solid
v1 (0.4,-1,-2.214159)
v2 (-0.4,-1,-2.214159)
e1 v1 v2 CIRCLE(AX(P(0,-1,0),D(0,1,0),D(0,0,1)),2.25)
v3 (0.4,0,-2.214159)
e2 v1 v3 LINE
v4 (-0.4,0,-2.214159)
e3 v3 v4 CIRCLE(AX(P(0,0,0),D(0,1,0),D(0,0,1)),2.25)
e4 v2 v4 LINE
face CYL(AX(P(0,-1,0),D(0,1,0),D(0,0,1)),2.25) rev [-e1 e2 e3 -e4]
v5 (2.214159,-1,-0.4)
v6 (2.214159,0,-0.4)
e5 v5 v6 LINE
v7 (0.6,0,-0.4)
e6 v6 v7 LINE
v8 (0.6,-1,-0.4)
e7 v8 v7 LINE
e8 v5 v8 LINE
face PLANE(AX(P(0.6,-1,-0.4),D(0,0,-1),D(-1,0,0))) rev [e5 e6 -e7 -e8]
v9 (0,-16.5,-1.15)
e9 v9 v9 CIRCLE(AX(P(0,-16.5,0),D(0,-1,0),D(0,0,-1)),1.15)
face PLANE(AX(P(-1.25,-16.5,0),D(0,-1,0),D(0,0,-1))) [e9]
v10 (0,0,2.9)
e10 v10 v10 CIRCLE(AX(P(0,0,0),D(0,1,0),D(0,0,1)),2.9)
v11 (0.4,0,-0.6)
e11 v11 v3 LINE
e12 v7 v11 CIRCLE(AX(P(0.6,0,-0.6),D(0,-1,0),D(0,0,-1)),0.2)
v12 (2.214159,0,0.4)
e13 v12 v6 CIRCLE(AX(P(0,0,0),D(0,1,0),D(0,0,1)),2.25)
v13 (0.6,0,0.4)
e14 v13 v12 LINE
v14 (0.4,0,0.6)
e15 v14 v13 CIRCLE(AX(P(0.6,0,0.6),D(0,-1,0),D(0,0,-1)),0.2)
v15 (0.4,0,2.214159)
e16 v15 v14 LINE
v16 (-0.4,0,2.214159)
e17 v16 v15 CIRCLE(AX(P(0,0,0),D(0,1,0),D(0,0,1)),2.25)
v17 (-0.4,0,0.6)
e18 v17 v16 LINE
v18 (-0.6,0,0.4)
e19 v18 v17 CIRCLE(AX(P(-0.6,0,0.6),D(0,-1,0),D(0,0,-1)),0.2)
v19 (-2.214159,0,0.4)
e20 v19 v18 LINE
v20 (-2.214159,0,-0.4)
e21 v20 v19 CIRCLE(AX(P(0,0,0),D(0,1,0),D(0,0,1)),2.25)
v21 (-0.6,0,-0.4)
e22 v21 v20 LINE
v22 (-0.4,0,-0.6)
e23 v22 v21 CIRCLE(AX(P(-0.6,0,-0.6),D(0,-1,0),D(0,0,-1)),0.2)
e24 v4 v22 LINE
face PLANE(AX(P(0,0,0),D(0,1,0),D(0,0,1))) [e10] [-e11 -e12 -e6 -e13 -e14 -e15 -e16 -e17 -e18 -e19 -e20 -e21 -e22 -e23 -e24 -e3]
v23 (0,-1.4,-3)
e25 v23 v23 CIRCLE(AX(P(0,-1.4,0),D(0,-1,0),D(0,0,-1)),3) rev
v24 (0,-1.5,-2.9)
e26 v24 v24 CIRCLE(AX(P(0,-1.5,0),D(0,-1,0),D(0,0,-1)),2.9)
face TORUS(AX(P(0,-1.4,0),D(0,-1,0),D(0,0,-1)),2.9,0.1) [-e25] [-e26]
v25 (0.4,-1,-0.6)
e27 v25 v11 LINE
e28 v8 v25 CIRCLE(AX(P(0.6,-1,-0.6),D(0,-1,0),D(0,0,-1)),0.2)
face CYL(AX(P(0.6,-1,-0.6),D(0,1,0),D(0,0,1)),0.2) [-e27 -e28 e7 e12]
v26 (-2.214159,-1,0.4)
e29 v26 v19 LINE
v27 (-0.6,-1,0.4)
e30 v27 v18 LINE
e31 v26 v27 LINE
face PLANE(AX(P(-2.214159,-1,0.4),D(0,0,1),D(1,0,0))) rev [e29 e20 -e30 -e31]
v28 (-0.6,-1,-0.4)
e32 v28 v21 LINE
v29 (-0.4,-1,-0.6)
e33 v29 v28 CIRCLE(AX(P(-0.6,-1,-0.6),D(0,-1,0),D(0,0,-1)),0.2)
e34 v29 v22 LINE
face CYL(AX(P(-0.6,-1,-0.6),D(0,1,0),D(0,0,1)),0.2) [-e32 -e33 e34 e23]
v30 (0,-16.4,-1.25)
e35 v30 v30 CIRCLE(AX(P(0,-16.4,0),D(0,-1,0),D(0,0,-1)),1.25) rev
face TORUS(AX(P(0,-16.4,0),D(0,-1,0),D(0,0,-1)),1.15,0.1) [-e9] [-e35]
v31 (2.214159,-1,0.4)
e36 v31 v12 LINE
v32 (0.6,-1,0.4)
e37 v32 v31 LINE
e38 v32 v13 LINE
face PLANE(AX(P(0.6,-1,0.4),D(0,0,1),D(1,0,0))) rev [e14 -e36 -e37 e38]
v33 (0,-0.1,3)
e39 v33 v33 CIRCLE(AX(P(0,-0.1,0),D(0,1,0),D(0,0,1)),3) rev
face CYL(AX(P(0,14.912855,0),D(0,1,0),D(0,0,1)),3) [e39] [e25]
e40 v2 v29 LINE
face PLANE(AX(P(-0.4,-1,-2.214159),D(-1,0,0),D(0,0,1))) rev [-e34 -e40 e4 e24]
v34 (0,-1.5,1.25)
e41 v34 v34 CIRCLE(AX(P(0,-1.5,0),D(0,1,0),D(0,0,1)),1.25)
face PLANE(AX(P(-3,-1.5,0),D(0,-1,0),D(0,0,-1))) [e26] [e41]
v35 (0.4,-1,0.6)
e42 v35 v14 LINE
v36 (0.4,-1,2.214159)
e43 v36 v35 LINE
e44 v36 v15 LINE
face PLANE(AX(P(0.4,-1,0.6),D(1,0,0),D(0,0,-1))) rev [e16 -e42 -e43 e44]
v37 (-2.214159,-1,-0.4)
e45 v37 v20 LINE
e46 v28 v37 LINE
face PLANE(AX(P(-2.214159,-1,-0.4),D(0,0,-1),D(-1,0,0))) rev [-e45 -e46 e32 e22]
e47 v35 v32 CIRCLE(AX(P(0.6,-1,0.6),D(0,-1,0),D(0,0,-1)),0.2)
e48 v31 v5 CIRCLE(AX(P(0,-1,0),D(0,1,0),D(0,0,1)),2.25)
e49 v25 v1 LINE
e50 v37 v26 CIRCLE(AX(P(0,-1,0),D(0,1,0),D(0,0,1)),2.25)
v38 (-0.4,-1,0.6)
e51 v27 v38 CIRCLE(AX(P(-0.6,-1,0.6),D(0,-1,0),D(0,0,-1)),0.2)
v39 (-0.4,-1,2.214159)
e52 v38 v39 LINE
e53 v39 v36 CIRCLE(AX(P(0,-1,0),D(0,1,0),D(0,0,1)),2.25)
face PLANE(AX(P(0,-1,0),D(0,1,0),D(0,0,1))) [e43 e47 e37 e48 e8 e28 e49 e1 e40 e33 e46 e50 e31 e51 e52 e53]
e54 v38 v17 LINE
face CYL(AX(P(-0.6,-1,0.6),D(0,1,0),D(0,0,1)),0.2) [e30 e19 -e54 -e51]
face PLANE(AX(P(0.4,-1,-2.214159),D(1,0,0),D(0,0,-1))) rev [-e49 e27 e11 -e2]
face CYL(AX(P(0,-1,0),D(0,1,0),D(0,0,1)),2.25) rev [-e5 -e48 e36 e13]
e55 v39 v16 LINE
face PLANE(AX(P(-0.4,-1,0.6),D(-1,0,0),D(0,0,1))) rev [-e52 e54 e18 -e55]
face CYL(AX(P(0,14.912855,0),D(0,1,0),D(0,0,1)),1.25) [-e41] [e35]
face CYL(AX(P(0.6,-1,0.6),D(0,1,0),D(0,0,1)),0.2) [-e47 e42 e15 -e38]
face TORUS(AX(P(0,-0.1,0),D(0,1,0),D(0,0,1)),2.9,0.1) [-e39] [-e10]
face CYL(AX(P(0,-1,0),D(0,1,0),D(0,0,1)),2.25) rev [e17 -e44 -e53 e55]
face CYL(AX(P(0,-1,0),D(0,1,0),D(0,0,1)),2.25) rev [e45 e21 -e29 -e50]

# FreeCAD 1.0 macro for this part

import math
import FreeCAD as App
import Part
import Sketcher

V = App.Vector
Q = App.Units.Quantity


def edges_at(feature, points):
    """Names of the edges that pass closest to the given points."""
    edges = feature.Shape.Edges
    near = lambda p: min(range(len(edges)), key=lambda i: edges[i].distToShape(Part.Vertex(*p))[0])
    return sorted({f"Edge{near(p) + 1}" for p in points})


def add_polygon(sketch, points):
    """Adds a closed chain of lines whose ends are joined by coincident constraints."""
    first, n = sketch.GeometryCount, len(points)
    for a, b in zip(points, points[1:] + points[:1]):
        sketch.addGeometry(Part.LineSegment(App.Vector(*a, 0), App.Vector(*b, 0)), False)
    for i in range(n):
        sketch.addConstraint(Sketcher.Constraint("Coincident", first + i, 2, first + (i + 1) % n, 1))

doc = App.newDocument("Part")
body = doc.addObject("PartDesign::Body", "Body")

# Sketch on XY plane
sketch1 = body.newObject("Sketcher::SketchObject", "Sketch")
sketch1.AttachmentSupport = (doc.getObject("XY_Plane"), [""])
sketch1.MapMode = "FlatFace"
add_polygon(sketch1, [(0, 0), (-3, 0), (-3, -1.5), (-1.2, -1.5), (-1.2, -16.5), (0, -16.5)])  # lines 0-5
sketch1.addConstraint(Sketcher.Constraint("Horizontal", 0))
sketch1.addConstraint(Sketcher.Constraint("Vertical", 1))
sketch1.addConstraint(Sketcher.Constraint("Horizontal", 2))
sketch1.addConstraint(Sketcher.Constraint("Vertical", 3))
sketch1.addConstraint(Sketcher.Constraint("Horizontal", 4))
sketch1.addConstraint(Sketcher.Constraint("Vertical", 5))
sketch1.addConstraint(Sketcher.Constraint("Coincident", 5, 2, -1, 1))
sketch1.addConstraint(Sketcher.Constraint("DistanceX", 0, 2, 0, 1, Q("3 mm")))
sketch1.addConstraint(Sketcher.Constraint("DistanceY", 3, 2, 3, 1, Q("15 mm")))
sketch1.addConstraint(Sketcher.Constraint("DistanceY", 1, 2, 1, 1, Q("1.5 mm")))
sketch1.addConstraint(Sketcher.Constraint("DistanceX", 2, 1, 2, 2, Q("1.75 mm")))
revolution = body.newObject("PartDesign::Revolution", "Revolution")
revolution.Profile = sketch1
revolution.ReferenceAxis = (sketch1, ["V_Axis"])
revolution.Angle = 360
doc.recompute()

fillet = body.newObject("PartDesign::Fillet", "Fillet")
fillet.Base = (revolution, edges_at(revolution, [(0, -16.5, -1.25), (0, -1.5, -3), (0, 0, -3)]))
fillet.Radius = 0.1

# Sketch on XZ plane
sketch2 = body.newObject("Sketcher::SketchObject", "Sketch001")
sketch2.AttachmentSupport = (doc.getObject("XZ_Plane"), [""])
sketch2.MapMode = "FlatFace"
sketch2.addGeometry(Part.LineSegment(V(-2.21, 0.4, 0), V(-0.6, 0.4, 0)), False)
sketch2.addGeometry(Part.ArcOfCircle(Part.Circle(V(-0.6, 0.6, 0), V(0, 0, 1), 0.2), math.radians(-90), math.radians(0)), False)
sketch2.addGeometry(Part.LineSegment(V(-0.4, 0.6, 0), V(-0.4, 2.21, 0)), False)
sketch2.addGeometry(Part.ArcOfCircle(Part.Circle(V(0, 0, 0), V(0, 0, 1), 2.25), math.radians(80), math.radians(100)), False)
sketch2.addGeometry(Part.LineSegment(V(0.4, 2.21, 0), V(0.4, 0.6, 0)), False)
sketch2.addGeometry(Part.ArcOfCircle(Part.Circle(V(0.6, 0.6, 0), V(0, 0, 1), 0.2), math.radians(-180), math.radians(-90)), False)
sketch2.addGeometry(Part.LineSegment(V(0.6, 0.4, 0), V(2.21, 0.4, 0)), False)
sketch2.addGeometry(Part.ArcOfCircle(Part.Circle(V(0, 0, 0), V(0, 0, 1), 2.25), math.radians(-10), math.radians(10)), False)
sketch2.addGeometry(Part.LineSegment(V(2.21, -0.4, 0), V(0.6, -0.4, 0)), False)
sketch2.addGeometry(Part.ArcOfCircle(Part.Circle(V(0.6, -0.6, 0), V(0, 0, 1), 0.2), math.radians(90), math.radians(180)), False)
sketch2.addGeometry(Part.LineSegment(V(0.4, -0.6, 0), V(0.4, -2.21, 0)), False)
sketch2.addGeometry(Part.ArcOfCircle(Part.Circle(V(0, 0, 0), V(0, 0, 1), 2.25), math.radians(-100), math.radians(-80)), False)
sketch2.addGeometry(Part.LineSegment(V(-0.4, -2.21, 0), V(-0.4, -0.6, 0)), False)
sketch2.addGeometry(Part.ArcOfCircle(Part.Circle(V(-0.6, -0.6, 0), V(0, 0, 1), 0.2), math.radians(0), math.radians(90)), False)
sketch2.addGeometry(Part.LineSegment(V(-0.6, -0.4, 0), V(-2.21, -0.4, 0)), False)
sketch2.addGeometry(Part.ArcOfCircle(Part.Circle(V(0, 0, 0), V(0, 0, 1), 2.25), math.radians(170), math.radians(190)), False)
sketch2.addConstraint(Sketcher.Constraint("Tangent", 0, 2, 1, 1))
sketch2.addConstraint(Sketcher.Constraint("Tangent", 1, 2, 2, 1))
sketch2.addConstraint(Sketcher.Constraint("Coincident", 2, 2, 3, 2))
sketch2.addConstraint(Sketcher.Constraint("Coincident", 3, 1, 4, 1))
sketch2.addConstraint(Sketcher.Constraint("Tangent", 4, 2, 5, 1))
sketch2.addConstraint(Sketcher.Constraint("Tangent", 5, 2, 6, 1))
sketch2.addConstraint(Sketcher.Constraint("Coincident", 6, 2, 7, 2))
sketch2.addConstraint(Sketcher.Constraint("Coincident", 7, 1, 8, 1))
sketch2.addConstraint(Sketcher.Constraint("Tangent", 8, 2, 9, 1))
sketch2.addConstraint(Sketcher.Constraint("Tangent", 9, 2, 10, 1))
sketch2.addConstraint(Sketcher.Constraint("Coincident", 10, 2, 11, 2))
sketch2.addConstraint(Sketcher.Constraint("Coincident", 11, 1, 12, 1))
sketch2.addConstraint(Sketcher.Constraint("Tangent", 12, 2, 13, 1))
sketch2.addConstraint(Sketcher.Constraint("Tangent", 13, 2, 14, 1))
sketch2.addConstraint(Sketcher.Constraint("Coincident", 14, 2, 15, 2))
sketch2.addConstraint(Sketcher.Constraint("Coincident", 15, 1, 0, 1))
sketch2.addConstraint(Sketcher.Constraint("Horizontal", 0))
sketch2.addConstraint(Sketcher.Constraint("Vertical", 2))
sketch2.addConstraint(Sketcher.Constraint("Vertical", 4))
sketch2.addConstraint(Sketcher.Constraint("Horizontal", 6))
sketch2.addConstraint(Sketcher.Constraint("Horizontal", 8))
sketch2.addConstraint(Sketcher.Constraint("Vertical", 10))
sketch2.addConstraint(Sketcher.Constraint("Vertical", 12))
sketch2.addConstraint(Sketcher.Constraint("Horizontal", 14))
sketch2.addConstraint(Sketcher.Constraint("Coincident", 3, 3, -1, 1))
sketch2.addConstraint(Sketcher.Constraint("Coincident", 7, 3, -1, 1))
sketch2.addConstraint(Sketcher.Constraint("Coincident", 11, 3, -1, 1))
sketch2.addConstraint(Sketcher.Constraint("Coincident", 15, 3, -1, 1))
sketch2.addConstraint(Sketcher.Constraint("Equal", 1, 5))
sketch2.addConstraint(Sketcher.Constraint("Equal", 3, 7))
sketch2.addConstraint(Sketcher.Constraint("Equal", 5, 9))
sketch2.addConstraint(Sketcher.Constraint("Equal", 7, 11))
sketch2.addConstraint(Sketcher.Constraint("Equal", 9, 13))
sketch2.addConstraint(Sketcher.Constraint("Equal", 11, 15))
sketch2.addConstraint(Sketcher.Constraint("Symmetric", 1, 3, 9, 3, -1, 1))
sketch2.addConstraint(Sketcher.Constraint("Symmetric", 5, 3, 13, 3, -1, 1))
sketch2.addConstraint(Sketcher.Constraint("Symmetric", 1, 3, 5, 3, -2))
sketch2.addConstraint(Sketcher.Constraint("Equal", 14, 2))
sketch2.addConstraint(Sketcher.Constraint("Radius", 1, Q("0.2 mm")))
sketch2.addConstraint(Sketcher.Constraint("Radius", 3, Q("2.25 mm")))
sketch2.addConstraint(Sketcher.Constraint("DistanceX", 2, 2, 5, 3, Q("1 mm")))
pocket1 = body.newObject("PartDesign::Pocket", "Pocket")
pocket1.Profile = sketch2
pocket1.Length = 1
pocket1.Reversed = True

doc.recompute()
